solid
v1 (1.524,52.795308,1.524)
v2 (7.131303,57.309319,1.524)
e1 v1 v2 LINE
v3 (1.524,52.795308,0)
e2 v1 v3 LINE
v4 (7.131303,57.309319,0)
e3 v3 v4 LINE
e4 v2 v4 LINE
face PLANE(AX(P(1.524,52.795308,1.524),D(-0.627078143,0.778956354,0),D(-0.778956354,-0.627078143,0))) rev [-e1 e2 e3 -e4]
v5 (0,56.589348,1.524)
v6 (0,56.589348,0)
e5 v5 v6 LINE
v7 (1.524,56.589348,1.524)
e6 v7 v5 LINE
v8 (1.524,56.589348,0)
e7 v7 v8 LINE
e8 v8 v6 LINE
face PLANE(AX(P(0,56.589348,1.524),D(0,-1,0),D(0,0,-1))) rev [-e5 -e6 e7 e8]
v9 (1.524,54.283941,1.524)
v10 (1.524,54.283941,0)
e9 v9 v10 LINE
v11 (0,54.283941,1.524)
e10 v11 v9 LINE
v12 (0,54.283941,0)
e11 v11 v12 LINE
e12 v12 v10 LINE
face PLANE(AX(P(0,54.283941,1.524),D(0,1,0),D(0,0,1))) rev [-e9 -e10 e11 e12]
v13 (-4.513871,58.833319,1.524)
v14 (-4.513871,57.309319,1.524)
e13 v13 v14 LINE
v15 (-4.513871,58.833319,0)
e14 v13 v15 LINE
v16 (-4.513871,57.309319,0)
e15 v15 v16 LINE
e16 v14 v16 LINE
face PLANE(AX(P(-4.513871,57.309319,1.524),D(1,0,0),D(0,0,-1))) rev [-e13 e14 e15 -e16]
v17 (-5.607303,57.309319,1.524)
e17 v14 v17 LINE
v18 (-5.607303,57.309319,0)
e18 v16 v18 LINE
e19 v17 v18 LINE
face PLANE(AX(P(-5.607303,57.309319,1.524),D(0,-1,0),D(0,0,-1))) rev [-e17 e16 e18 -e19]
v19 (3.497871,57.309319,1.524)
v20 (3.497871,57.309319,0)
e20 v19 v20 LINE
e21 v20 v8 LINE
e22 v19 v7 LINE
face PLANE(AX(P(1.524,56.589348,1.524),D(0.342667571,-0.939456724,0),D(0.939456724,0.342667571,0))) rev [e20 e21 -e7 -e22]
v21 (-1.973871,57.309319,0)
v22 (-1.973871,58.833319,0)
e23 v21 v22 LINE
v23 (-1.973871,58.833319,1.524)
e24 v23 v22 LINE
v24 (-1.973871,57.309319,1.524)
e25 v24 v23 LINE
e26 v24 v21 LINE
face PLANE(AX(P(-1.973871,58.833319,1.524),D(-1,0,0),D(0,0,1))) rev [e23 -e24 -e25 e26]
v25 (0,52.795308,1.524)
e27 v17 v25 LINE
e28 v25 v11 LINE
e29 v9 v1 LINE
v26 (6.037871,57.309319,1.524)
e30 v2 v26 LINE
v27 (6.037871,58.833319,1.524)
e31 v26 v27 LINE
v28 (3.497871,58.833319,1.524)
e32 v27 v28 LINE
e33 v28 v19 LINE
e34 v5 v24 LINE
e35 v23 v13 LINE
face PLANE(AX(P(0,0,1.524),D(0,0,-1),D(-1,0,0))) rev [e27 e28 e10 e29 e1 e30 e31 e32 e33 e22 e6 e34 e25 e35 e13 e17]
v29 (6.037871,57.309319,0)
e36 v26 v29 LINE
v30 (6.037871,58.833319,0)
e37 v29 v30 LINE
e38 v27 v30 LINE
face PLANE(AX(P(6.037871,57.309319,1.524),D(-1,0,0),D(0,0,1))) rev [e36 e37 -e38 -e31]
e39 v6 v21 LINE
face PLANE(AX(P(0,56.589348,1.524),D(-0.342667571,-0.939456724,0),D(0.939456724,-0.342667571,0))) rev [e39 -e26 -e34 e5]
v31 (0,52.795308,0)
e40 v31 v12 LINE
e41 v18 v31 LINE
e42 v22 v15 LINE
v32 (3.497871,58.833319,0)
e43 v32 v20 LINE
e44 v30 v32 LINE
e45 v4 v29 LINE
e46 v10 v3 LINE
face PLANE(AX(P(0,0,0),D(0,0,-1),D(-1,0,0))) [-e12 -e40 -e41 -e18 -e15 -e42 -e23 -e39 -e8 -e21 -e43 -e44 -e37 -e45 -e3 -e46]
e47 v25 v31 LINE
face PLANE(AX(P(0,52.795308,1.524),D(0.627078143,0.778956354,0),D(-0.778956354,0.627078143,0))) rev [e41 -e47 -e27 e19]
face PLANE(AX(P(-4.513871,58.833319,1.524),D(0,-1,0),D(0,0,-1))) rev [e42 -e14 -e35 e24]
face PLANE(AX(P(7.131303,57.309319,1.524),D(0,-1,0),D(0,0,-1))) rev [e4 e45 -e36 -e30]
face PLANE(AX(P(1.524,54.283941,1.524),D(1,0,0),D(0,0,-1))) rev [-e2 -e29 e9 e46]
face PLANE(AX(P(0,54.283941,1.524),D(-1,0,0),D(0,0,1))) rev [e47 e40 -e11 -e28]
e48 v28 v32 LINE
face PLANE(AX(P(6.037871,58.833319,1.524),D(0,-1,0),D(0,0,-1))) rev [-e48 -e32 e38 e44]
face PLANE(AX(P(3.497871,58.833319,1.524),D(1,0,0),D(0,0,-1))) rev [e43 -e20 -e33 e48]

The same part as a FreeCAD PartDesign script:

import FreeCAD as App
import Part
import Sketcher
from FreeCAD import Vector
Q = App.Units.Quantity


def add_polygon(sketch, points):
    """Adds a closed chain of lines whose ends are joined by coincident constraints."""
    first, n = sketch.GeometryCount, len(points)
    for a, b in zip(points, points[1:] + points[:1]):
        sketch.addGeometry(Part.LineSegment(App.Vector(*a, 0), App.Vector(*b, 0)), False)
    for i in range(n):
        sketch.addConstraint(Sketcher.Constraint("Coincident", first + i, 2, first + (i + 1) % n, 1))

doc = App.newDocument("Part")
body = doc.addObject("PartDesign::Body", "Body")

# Sketch on XY plane
sketch1 = doc.addObject("Sketcher::SketchObject", "Sketch")
body.addObject(sketch1)
sketch1.AttachmentSupport = (doc.XY_Plane, [""])
sketch1.MapMode = "FlatFace"
add_polygon(sketch1, [(0, 54.3), (1.5, 54.3), (1.5, 52.8), (7.1, 57.3), (6, 57.3), (6, 58.8), (3.5, 58.8), (3.5, 57.3), (1.5, 56.6), (0, 56.6), (-2, 57.3), (-2, 58.8), (-4.5, 58.8), (-4.5, 57.3), (-5.6, 57.3), (0, 52.8)])  # lines 0-15
sketch1.addConstraint(Sketcher.Constraint("Horizontal", 0))
sketch1.addConstraint(Sketcher.Constraint("Vertical", 1))
sketch1.addConstraint(Sketcher.Constraint("Horizontal", 3))
sketch1.addConstraint(Sketcher.Constraint("Vertical", 4))
sketch1.addConstraint(Sketcher.Constraint("Horizontal", 5))
sketch1.addConstraint(Sketcher.Constraint("Vertical", 6))
sketch1.addConstraint(Sketcher.Constraint("Horizontal", 8))
sketch1.addConstraint(Sketcher.Constraint("Vertical", 10))
sketch1.addConstraint(Sketcher.Constraint("Horizontal", 11))
sketch1.addConstraint(Sketcher.Constraint("Vertical", 12))
sketch1.addConstraint(Sketcher.Constraint("Horizontal", 13))
sketch1.addConstraint(Sketcher.Constraint("Vertical", 15))
sketch1.addConstraint(Sketcher.Constraint("PointOnObject", 8, 2, -2))
sketch1.addConstraint(Sketcher.Constraint("PointOnObject", 14, 2, -2))
sketch1.addConstraint(Sketcher.Constraint("Horizontal", 3, 2, 6, 2))
sketch1.addConstraint(Sketcher.Constraint("Horizontal", 6, 2, 9, 2))
sketch1.addConstraint(Sketcher.Constraint("Horizontal", 5, 2, 10, 2))
sketch1.addConstraint(Sketcher.Constraint("Horizontal", 9, 2, 12, 2))
sketch1.addConstraint(Sketcher.Constraint("Horizontal", 1, 2, 14, 2))
sketch1.addConstraint(Sketcher.Constraint("Vertical", 1, 2, 7, 2))
sketch1.addConstraint(Sketcher.Constraint("Equal", 5, 11))
sketch1.addConstraint(Sketcher.Constraint("Equal", 3, 13))
sketch1.addConstraint(Sketcher.Constraint("Equal", 8, 4))
sketch1.addConstraint(Sketcher.Constraint("Equal", 7, 9))
sketch1.addConstraint(Sketcher.Constraint("DistanceX", 5, 2, 5, 1, Q("0.1 in")))
sketch1.addConstraint(Sketcher.Constraint("DistanceX", 0, 1, 0, 2, Q("0.06 in")))
sketch1.addConstraint(Sketcher.Constraint("DistanceX", 3, 2, 3, 1, Q("1.093432 mm")))
sketch1.addConstraint(Sketcher.Constraint("Distance", 2, Q("7.198482 mm")))
sketch1.addConstraint(Sketcher.Constraint("DistanceY", 1, 2, 1, 1, Q("1.488633 mm")))
sketch1.addConstraint(Sketcher.Constraint("DistanceY", -1, 1, 0, 2, Q("54.283941 mm")))
sketch1.addConstraint(Sketcher.Constraint("DistanceY", -1, 1, 2, 2, Q("57.309319 mm")))
sketch1.addConstraint(Sketcher.Constraint("DistanceY", 7, 2, 6, 2, Q("0.719971 mm")))
pad1 = doc.addObject("PartDesign::Pad", "Pad")
body.addObject(pad1)
pad1.Profile = sketch1
pad1.Length = Q("0.06 in")

doc.recompute()
